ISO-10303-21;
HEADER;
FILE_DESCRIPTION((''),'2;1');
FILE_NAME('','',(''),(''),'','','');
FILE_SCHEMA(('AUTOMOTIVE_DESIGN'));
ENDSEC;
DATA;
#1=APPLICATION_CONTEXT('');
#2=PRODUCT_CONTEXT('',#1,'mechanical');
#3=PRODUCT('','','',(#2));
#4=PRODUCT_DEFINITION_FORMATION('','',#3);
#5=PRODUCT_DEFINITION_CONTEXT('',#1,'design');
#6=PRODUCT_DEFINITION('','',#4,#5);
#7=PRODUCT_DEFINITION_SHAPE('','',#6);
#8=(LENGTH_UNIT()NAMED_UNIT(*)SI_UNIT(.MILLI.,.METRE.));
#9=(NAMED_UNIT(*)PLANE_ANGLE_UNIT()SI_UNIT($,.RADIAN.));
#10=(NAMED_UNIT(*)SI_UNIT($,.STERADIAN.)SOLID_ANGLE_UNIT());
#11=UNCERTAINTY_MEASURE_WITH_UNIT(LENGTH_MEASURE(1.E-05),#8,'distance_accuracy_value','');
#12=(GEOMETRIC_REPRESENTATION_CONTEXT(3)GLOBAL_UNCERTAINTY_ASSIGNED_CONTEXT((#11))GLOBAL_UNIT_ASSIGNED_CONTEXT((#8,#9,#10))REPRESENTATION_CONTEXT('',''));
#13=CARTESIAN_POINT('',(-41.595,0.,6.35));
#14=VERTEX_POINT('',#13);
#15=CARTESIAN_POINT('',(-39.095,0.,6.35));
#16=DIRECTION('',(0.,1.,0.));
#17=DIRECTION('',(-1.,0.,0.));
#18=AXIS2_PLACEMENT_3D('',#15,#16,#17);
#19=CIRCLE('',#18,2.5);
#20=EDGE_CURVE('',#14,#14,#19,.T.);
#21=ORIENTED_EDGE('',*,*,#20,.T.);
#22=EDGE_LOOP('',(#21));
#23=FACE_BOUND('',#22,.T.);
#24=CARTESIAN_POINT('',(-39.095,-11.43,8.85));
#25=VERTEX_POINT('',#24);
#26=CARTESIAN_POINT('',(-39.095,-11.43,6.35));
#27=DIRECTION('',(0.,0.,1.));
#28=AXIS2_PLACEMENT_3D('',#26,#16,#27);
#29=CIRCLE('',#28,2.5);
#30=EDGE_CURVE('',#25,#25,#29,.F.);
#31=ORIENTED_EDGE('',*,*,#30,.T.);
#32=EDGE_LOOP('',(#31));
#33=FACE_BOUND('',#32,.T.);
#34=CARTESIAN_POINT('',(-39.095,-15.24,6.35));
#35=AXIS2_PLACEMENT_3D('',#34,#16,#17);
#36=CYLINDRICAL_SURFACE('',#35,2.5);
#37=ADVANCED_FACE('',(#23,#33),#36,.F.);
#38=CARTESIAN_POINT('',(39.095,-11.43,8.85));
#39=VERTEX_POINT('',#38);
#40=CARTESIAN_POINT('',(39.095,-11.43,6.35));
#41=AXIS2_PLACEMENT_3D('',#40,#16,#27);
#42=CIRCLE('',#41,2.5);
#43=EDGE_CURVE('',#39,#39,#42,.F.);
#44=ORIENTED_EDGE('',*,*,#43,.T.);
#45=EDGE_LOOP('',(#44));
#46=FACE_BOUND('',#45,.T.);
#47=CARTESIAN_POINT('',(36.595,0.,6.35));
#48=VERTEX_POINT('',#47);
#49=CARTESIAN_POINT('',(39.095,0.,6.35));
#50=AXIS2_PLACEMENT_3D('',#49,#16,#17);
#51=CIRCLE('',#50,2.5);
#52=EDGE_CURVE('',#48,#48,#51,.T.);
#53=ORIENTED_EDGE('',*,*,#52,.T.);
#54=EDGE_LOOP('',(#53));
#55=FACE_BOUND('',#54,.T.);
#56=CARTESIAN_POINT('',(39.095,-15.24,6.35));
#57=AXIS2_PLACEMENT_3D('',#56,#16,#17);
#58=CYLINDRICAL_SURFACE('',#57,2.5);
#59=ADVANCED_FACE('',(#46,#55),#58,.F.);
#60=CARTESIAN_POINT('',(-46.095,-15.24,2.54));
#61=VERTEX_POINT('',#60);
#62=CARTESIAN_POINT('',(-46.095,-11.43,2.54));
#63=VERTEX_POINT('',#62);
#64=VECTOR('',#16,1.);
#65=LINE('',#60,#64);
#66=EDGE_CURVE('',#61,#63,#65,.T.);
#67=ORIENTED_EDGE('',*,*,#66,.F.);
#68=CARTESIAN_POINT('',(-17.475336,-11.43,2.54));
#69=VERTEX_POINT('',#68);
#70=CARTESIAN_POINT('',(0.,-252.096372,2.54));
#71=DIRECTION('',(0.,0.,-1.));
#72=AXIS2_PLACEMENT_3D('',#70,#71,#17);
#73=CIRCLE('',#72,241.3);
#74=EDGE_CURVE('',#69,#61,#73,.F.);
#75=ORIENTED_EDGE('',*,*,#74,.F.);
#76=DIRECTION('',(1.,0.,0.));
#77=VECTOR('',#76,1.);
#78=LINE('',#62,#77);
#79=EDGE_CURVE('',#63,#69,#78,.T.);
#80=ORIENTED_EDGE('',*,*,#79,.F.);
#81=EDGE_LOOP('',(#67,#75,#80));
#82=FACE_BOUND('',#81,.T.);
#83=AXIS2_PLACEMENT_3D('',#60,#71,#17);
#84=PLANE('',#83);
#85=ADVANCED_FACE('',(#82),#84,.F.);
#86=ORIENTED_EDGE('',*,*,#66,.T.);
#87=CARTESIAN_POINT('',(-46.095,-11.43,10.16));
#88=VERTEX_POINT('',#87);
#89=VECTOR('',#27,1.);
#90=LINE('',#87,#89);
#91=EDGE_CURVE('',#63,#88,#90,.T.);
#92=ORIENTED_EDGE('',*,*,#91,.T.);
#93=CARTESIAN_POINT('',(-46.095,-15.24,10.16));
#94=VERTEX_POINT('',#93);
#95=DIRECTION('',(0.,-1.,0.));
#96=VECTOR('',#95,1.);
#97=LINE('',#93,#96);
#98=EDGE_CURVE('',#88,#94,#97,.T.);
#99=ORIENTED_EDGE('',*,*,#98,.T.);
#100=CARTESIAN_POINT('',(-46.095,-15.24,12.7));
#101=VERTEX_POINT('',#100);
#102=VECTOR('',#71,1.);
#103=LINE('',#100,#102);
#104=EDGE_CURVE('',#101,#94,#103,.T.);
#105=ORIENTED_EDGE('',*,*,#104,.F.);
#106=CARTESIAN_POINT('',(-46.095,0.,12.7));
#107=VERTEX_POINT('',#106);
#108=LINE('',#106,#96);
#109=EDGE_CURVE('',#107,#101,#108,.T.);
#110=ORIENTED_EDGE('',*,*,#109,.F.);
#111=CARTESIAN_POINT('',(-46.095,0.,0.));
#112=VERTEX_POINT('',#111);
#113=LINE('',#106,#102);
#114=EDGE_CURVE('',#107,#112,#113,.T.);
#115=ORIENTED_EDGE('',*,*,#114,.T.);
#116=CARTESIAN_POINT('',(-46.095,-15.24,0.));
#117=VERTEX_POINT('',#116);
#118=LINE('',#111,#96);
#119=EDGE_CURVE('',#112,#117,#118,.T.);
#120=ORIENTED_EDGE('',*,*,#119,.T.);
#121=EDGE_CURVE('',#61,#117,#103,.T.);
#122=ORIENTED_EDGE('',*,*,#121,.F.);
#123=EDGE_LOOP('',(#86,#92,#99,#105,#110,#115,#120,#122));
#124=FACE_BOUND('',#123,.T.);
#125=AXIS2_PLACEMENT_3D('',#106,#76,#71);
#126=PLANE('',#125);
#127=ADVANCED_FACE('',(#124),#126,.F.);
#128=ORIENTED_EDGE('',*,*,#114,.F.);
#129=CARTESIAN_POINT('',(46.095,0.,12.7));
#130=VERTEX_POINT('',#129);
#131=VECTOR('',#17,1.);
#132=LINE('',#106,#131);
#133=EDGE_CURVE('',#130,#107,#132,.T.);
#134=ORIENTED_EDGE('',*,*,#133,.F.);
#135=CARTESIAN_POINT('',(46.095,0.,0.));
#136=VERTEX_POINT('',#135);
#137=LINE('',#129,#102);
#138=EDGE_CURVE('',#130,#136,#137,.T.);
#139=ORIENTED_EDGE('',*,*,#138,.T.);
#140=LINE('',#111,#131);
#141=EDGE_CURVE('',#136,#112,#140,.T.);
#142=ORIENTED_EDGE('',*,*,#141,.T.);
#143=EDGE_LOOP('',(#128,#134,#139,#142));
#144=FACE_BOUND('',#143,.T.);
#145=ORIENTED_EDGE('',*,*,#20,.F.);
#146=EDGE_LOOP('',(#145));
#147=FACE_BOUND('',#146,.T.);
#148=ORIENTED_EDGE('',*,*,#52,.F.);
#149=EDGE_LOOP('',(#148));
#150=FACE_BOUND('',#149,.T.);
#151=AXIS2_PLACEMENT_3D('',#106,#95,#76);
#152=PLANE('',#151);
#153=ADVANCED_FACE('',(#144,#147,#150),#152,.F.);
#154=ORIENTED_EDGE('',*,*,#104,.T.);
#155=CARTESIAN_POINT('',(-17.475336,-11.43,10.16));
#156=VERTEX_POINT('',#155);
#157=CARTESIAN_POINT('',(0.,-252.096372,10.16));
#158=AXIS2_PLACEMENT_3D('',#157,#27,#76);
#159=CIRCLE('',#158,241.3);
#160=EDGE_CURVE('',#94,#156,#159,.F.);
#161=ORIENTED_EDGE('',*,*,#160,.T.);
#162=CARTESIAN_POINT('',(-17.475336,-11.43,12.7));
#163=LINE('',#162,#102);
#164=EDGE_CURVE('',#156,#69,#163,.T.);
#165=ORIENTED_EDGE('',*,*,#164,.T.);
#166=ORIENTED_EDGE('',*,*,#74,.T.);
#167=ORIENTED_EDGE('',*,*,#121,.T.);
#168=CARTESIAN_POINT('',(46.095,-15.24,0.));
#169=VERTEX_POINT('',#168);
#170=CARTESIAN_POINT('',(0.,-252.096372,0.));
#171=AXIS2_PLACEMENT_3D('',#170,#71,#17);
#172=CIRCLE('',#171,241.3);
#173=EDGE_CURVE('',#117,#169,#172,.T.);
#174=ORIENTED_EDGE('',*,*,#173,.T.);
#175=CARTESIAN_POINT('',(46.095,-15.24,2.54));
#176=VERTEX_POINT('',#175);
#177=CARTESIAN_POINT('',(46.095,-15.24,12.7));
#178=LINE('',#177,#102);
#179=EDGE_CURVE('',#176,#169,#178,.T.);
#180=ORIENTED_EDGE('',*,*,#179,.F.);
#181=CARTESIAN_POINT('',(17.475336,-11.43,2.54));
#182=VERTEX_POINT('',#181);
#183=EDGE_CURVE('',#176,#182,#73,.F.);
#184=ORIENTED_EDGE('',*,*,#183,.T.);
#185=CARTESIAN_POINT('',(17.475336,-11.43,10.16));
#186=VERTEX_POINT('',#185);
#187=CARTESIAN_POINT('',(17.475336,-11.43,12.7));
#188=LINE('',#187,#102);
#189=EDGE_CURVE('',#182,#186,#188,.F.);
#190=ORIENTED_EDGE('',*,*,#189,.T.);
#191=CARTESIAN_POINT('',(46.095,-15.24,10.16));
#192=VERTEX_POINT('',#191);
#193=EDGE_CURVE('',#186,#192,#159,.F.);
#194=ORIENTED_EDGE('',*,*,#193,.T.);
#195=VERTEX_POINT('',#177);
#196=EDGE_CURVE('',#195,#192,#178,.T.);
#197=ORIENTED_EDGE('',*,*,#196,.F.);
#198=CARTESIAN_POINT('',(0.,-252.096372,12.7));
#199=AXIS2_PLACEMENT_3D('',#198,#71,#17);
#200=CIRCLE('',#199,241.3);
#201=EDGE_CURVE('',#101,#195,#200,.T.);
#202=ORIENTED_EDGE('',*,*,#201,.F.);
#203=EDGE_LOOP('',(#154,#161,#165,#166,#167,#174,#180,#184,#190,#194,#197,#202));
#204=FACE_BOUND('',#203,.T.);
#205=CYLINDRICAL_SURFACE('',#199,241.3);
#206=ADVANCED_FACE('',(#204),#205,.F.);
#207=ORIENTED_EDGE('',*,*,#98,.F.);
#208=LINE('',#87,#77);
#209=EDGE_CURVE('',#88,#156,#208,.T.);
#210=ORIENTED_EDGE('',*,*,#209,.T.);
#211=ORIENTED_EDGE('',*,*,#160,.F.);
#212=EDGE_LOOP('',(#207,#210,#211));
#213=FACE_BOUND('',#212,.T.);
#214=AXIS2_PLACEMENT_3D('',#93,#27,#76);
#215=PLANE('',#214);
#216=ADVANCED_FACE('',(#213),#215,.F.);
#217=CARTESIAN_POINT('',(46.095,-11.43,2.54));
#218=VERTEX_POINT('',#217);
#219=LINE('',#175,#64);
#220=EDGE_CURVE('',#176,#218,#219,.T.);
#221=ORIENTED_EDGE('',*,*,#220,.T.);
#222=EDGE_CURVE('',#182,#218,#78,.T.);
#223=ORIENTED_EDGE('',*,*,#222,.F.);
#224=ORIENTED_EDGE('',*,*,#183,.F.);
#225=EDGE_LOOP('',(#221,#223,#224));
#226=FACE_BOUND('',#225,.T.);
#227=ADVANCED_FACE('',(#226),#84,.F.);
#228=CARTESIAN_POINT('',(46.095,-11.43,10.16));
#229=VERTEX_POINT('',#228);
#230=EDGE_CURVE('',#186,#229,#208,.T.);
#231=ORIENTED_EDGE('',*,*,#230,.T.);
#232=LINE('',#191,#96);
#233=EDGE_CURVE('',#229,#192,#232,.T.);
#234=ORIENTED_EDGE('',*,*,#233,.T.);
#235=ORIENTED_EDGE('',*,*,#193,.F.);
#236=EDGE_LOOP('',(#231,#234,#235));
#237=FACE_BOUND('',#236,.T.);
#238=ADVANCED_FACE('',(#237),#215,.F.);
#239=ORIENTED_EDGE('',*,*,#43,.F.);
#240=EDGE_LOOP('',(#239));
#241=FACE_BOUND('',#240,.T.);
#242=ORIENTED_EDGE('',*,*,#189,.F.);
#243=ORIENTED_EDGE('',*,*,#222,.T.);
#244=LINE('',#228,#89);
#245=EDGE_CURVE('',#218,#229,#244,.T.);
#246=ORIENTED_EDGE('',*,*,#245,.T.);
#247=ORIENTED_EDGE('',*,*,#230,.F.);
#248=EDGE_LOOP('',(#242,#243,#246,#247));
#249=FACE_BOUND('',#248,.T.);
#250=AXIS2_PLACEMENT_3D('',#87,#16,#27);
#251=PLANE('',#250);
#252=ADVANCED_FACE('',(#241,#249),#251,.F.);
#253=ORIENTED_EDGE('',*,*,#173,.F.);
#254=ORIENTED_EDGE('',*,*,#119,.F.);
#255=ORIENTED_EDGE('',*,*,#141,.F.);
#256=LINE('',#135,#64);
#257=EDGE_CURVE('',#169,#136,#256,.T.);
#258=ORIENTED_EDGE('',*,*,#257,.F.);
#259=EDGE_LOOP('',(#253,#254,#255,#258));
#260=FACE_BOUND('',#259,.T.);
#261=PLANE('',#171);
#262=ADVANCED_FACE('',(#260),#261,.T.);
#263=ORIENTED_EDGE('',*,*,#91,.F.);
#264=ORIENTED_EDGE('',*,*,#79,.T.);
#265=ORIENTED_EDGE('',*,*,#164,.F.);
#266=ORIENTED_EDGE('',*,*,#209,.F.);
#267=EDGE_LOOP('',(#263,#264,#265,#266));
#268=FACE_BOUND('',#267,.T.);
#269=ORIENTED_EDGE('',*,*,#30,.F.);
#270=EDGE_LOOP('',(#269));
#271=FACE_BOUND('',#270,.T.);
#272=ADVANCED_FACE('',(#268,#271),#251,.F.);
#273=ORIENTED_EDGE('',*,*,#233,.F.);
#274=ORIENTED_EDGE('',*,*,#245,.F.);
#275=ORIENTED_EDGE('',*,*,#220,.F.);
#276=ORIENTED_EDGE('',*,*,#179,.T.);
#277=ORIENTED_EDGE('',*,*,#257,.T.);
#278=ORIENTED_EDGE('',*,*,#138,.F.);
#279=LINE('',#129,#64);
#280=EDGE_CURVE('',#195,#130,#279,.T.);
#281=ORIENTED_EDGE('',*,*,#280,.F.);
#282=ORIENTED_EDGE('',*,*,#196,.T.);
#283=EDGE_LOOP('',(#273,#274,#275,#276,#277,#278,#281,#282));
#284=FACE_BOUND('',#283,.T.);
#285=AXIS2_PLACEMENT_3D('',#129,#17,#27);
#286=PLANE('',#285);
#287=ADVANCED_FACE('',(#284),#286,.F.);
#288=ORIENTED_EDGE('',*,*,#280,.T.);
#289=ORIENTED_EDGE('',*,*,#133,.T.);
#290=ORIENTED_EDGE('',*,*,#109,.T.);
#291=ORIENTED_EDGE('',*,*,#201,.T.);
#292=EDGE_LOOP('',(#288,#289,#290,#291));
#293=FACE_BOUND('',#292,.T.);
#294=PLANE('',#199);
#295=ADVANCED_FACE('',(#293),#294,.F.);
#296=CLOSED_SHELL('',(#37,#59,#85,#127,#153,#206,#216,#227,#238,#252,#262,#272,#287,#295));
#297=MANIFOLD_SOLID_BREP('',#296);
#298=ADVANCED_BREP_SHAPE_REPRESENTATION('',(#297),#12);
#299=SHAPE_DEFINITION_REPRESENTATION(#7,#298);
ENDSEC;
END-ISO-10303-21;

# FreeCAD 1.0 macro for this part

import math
import FreeCAD as App
import Part
import Sketcher
from FreeCAD import Vector
Q = App.Units.Quantity


def add_polygon(sketch, points):
    """Adds a closed chain of lines whose ends are joined by coincident constraints."""
    first, n = sketch.GeometryCount, len(points)
    for a, b in zip(points, points[1:] + points[:1]):
        sketch.addGeometry(Part.LineSegment(App.Vector(*a, 0), App.Vector(*b, 0)), False)
    for i in range(n):
        sketch.addConstraint(Sketcher.Constraint("Coincident", first + i, 2, first + (i + 1) % n, 1))

doc = App.newDocument("Part")
body = doc.addObject("PartDesign::Body", "Body")

sketch1 = body.newObject("Sketcher::SketchObject", "Sketch")
sketch1.AttachmentSupport = (doc.getObject("XY_Plane"), [""])
sketch1.MapMode = "FlatFace"
sketch1.addGeometry([
    Part.LineSegment(Vector(46, 0, 0), Vector(-46, 0, 0)),
    Part.LineSegment(Vector(-46, 0, 0), Vector(-46, -15, 0)),
    Part.ArcOfCircle(Part.Circle(Vector(0, -252, 0), Vector(0, 0, 1), 241), math.radians(79), math.radians(101)),
    Part.LineSegment(Vector(46, -15, 0), Vector(46, 0, 0)),
], False)
sketch1.addConstraint([
    Sketcher.Constraint("Coincident", 0, 2, 1, 1),
    Sketcher.Constraint("Coincident", 1, 2, 2, 2),
    Sketcher.Constraint("Coincident", 2, 1, 3, 1),
    Sketcher.Constraint("Coincident", 3, 2, 0, 1),
    Sketcher.Constraint("Horizontal", 0),
    Sketcher.Constraint("Vertical", 1),
    Sketcher.Constraint("Vertical", 3),
    Sketcher.Constraint("Symmetric", 0, 2, 3, 2, -1, 1),
    Sketcher.Constraint("PointOnObject", 2, 3, -2),
    Sketcher.Constraint("Radius", 2, Q("9.5 in")),
    Sketcher.Constraint("DistanceY", 1, 2, 1, 1, Q("0.6 in")),
    Sketcher.Constraint("DistanceX", 0, 2, 0, 1, Q("92.19 mm")),
])
pad1 = body.newObject("PartDesign::Pad", "Pad")
pad1.Profile = sketch1
pad1.Length = Q("0.5 in")

sketch2 = body.newObject("Sketcher::SketchObject", "Sketch001")
sketch2.AttachmentSupport = (doc.getObject("XZ_Plane"), [""])
sketch2.MapMode = "FlatFace"
sketch2.addGeometry([
    Part.Circle(Vector(-39.1, 6.3, 0), Vector(0, 0, 1), 2.5),
    Part.Circle(Vector(39.1, 6.3, 0), Vector(0, 0, 1), 2.5),
], False)
sketch2.addConstraint([
    Sketcher.Constraint("Equal", 0, 1),
    Sketcher.Constraint("Symmetric", 0, 3, 1, 3, -2),
    Sketcher.Constraint("Diameter", 0, Q("5 mm")),
    Sketcher.Constraint("DistanceY", -1, 1, 0, 3, Q("0.25 in")),
    Sketcher.Constraint("DistanceX", 0, 3, -1, 1, Q("39.095 mm")),
])
pocket1 = body.newObject("PartDesign::Pocket", "Pocket")
pocket1.Profile = sketch2
pocket1.Type = "ThroughAll"
pocket1.Reversed = True

sketch3 = body.newObject("Sketcher::SketchObject", "Sketch002")
sketch3.AttachmentSupport = (doc.getObject("YZ_Plane"), [""])
sketch3.MapMode = "FlatFace"
sketch3.AttachmentOffset = App.Placement(Vector(0, 0, 46.095), App.Rotation())
add_polygon(sketch3, [(-11.4, 10.2), (-15.2, 10.2), (-15.2, 2.5), (-11.4, 2.5)])
sketch3.addConstraint([
    Sketcher.Constraint("Horizontal", 0),
    Sketcher.Constraint("Vertical", 1),
    Sketcher.Constraint("Horizontal", 2),
    Sketcher.Constraint("Vertical", 3),
    Sketcher.Constraint("DistanceY", 1, 2, 1, 1, Q("0.3 in")),
    Sketcher.Constraint("DistanceX", 0, 2, 0, 1, Q("0.15 in")),
    Sketcher.Constraint("DistanceX", 0, 2, -1, 1, Q("0.6 in")),
    Sketcher.Constraint("DistanceY", -1, 1, 0, 2, Q("0.4 in")),
])
pocket2 = body.newObject("PartDesign::Pocket", "Pocket001")
pocket2.Profile = sketch3
pocket2.Type = "ThroughAll"

doc.recompute()
